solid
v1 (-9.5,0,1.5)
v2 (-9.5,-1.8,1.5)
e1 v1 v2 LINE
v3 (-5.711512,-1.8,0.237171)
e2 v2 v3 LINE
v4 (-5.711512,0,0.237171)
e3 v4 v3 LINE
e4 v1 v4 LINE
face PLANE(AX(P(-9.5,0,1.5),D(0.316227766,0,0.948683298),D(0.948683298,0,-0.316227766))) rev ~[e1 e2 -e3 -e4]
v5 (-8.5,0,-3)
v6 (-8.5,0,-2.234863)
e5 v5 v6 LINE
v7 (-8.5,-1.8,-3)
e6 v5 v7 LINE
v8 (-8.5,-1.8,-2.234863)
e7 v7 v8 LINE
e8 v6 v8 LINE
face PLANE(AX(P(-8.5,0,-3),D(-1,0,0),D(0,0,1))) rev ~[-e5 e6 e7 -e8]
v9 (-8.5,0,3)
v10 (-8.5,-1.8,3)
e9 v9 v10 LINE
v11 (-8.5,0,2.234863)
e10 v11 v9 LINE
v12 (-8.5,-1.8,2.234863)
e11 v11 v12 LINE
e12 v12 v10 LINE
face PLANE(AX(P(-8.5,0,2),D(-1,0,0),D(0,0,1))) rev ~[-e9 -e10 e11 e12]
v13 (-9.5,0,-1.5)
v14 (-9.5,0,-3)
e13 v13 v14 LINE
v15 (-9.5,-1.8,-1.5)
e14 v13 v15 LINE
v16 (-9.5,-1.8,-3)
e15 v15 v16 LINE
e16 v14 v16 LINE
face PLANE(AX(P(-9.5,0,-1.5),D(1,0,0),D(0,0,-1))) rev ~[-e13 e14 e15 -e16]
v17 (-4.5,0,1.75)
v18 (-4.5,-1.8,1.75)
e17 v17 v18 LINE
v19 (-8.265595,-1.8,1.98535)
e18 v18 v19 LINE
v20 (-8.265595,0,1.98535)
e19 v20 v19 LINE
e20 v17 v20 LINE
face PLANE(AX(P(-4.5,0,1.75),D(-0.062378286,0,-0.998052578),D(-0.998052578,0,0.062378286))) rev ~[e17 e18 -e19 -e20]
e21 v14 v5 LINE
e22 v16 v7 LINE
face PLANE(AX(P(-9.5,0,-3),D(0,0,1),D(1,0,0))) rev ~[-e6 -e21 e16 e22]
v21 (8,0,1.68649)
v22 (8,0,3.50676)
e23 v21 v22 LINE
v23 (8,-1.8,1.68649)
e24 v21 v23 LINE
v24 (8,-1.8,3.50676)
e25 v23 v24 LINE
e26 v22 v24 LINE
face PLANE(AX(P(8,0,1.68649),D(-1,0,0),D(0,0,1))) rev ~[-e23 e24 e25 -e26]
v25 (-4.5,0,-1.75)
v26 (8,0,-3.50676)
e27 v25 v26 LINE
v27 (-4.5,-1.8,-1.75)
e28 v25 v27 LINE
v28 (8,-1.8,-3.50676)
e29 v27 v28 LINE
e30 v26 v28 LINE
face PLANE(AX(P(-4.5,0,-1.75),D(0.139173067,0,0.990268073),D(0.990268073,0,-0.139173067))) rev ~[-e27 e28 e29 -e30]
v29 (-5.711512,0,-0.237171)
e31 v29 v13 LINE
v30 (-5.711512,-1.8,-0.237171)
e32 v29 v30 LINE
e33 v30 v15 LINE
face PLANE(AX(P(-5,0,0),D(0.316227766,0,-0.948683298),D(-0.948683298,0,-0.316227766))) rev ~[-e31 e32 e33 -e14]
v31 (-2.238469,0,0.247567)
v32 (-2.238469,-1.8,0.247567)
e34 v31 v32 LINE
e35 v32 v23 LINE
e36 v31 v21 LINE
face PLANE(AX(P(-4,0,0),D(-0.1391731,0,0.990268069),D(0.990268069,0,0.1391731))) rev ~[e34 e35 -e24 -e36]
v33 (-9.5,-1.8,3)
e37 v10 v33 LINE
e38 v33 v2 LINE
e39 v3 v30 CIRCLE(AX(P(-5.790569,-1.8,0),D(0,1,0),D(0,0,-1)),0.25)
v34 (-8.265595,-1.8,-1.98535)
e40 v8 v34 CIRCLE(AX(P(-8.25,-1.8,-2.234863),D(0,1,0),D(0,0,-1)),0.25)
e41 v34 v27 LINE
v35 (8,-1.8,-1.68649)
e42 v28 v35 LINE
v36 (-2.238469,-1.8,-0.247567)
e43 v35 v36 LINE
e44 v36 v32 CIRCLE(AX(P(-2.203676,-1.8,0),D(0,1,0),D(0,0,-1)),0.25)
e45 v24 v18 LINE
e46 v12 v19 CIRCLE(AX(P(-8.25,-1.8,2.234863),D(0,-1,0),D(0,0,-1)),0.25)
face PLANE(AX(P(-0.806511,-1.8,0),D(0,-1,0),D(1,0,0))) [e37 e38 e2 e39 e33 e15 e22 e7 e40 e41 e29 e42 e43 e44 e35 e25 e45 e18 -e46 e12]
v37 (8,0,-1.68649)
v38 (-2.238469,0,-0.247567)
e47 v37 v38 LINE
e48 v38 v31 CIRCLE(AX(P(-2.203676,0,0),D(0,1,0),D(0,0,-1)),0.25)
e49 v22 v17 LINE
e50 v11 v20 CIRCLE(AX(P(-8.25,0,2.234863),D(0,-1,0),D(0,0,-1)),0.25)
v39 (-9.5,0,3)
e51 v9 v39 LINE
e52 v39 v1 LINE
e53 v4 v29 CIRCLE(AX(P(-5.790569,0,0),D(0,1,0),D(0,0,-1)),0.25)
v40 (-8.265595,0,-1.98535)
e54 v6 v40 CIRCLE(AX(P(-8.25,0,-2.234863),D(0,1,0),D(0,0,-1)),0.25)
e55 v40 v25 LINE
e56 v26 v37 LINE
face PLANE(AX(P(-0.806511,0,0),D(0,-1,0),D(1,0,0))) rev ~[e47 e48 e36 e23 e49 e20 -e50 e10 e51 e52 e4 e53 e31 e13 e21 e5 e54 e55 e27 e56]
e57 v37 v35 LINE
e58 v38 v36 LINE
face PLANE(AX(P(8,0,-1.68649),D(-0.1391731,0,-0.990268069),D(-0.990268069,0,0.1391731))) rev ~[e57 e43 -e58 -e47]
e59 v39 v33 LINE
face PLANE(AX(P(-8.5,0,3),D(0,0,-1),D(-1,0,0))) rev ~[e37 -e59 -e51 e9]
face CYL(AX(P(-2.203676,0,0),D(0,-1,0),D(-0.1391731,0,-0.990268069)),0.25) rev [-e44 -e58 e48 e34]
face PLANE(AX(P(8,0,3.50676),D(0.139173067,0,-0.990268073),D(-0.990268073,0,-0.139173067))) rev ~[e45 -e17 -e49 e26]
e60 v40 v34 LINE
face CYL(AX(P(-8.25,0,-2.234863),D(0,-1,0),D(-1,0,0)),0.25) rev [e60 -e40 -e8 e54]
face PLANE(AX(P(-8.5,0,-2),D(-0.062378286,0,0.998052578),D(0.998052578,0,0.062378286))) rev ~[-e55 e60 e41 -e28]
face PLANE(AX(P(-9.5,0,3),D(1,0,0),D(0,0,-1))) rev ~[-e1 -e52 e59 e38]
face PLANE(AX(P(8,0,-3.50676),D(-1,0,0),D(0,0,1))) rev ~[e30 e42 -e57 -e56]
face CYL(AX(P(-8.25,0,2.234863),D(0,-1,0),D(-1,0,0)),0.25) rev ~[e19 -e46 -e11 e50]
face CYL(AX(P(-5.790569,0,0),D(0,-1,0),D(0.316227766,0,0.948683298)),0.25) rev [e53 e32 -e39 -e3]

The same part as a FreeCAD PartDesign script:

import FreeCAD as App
import Part
import Sketcher

V = App.Vector
Q = App.Units.Quantity


def edges_at(feature, points):
    """Names of the edges that pass closest to the given points."""
    edges = feature.Shape.Edges
    near = lambda p: min(range(len(edges)), key=lambda i: edges[i].distToShape(Part.Vertex(*p))[0])
    return sorted({f"Edge{near(p) + 1}" for p in points})


def add_polygon(sketch, points):
    """Adds a closed chain of lines whose ends are joined by coincident constraints."""
    first, n = sketch.GeometryCount, len(points)
    for a, b in zip(points, points[1:] + points[:1]):
        sketch.addGeometry(Part.LineSegment(App.Vector(*a, 0), App.Vector(*b, 0)), False)
    for i in range(n):
        sketch.addConstraint(Sketcher.Constraint("Coincident", first + i, 2, first + (i + 1) % n, 1))

doc = App.newDocument("Part")
params = doc.addObject("Spreadsheet::Sheet", "Params")
for row, (alias, value) in enumerate([
    ("sketch1_width", "1 mm"),
    ("sketch1_height", "1.5 mm"),
    ("pad1_length", "1.8 mm"),
    ("fillet_radius", "0.25 mm"),
    ("fillet2_radius", "0.25 mm"),
], start=1):
    params.set(f"A{row}", alias)
    params.set(f"B{row}", "=" + value)
    params.setAlias(f"B{row}", alias)

body = doc.addObject("PartDesign::Body", "Body")

# Sketch on XZ plane
sketch1 = body.newObject("Sketcher::SketchObject", "Sketch")
sketch1.AttachmentSupport = (doc.getObject("XZ_Plane"), [""])
sketch1.MapMode = "FlatFace"
add_polygon(sketch1, [(8, 3.50676), (-4.5, 1.75), (-8.5, 2), (-8.5, 3), (-9.5, 3), (-9.5, 1.5), (-5, 0), (-9.5, -1.5), (-9.5, -3), (-8.5, -3), (-8.5, -2), (-4.5, -1.75), (8, -3.50676), (8, -1.68649), (-4, 0), (8, 1.68649)])  # lines 0-15
sketch1.addConstraint([
    Sketcher.Constraint("Vertical", 2),
    Sketcher.Constraint("Horizontal", 3),
    Sketcher.Constraint("Vertical", 4),
    Sketcher.Constraint("Vertical", 7),
    Sketcher.Constraint("Horizontal", 8),
    Sketcher.Constraint("Vertical", 9),
    Sketcher.Constraint("Vertical", 12),
    Sketcher.Constraint("Vertical", 15),
    Sketcher.Constraint("Symmetric", 4, 2, 6, 2, -1),
    Sketcher.Constraint("Symmetric", 2, 2, 8, 2, -1),
    Sketcher.Constraint("Symmetric", 0, 2, 10, 2, -1),
    Sketcher.Constraint("Symmetric", 12, 2, 14, 2, -1),
    Sketcher.Constraint("PointOnObject", 5, 2, -1),
    Sketcher.Constraint("PointOnObject", 13, 2, -1),
    Sketcher.Constraint("Parallel", 11, 13),
    Sketcher.Constraint("Parallel", 0, 14),
    Sketcher.Constraint("Equal", 8, 2),
    Sketcher.Constraint("Equal", 2, 9),
    Sketcher.Constraint("DistanceX", 3, 2, 3, 1, 1.0),
    Sketcher.Constraint("Angle", 0, Q("-172.000002 deg")),
    Sketcher.Constraint("DistanceY", 4, 2, 4, 1, 1.5),
    Sketcher.Constraint("DistanceY", -1, 1, 1, 2, 2.0),
    Sketcher.Constraint("DistanceX", 5, 2, -1, 1, 5.0),
    Sketcher.Constraint("DistanceX", -1, 1, 11, 2, 8.0),
    Sketcher.Constraint("DistanceX", 13, 2, -1, 1, 4.0),
    Sketcher.Constraint("DistanceX", 1, 2, 0, 2, 4.0),
    Sketcher.Constraint("DistanceX", 0, 2, -1, 1, 4.5),
    Sketcher.Constraint("DistanceY", 10, 2, 0, 2, 3.5),
])
sketch1.setExpression("Constraints[34]", "Params.sketch1_width")
sketch1.setExpression("Constraints[36]", "Params.sketch1_height")
pad1 = body.newObject("PartDesign::Pad", "Pad")
pad1.Profile = sketch1
pad1.setExpression("Length", "Params.pad1_length")
doc.recompute()

fillet = body.newObject("PartDesign::Fillet", "Fillet")
fillet.Base = (pad1, edges_at(pad1, [(-4, -0.9, 0), (-5, -0.9, 0)]))
fillet.setExpression("Radius", "Params.fillet_radius")
doc.recompute()

fillet2 = body.newObject("PartDesign::Fillet", "Fillet001")
fillet2.Base = (fillet, edges_at(fillet, [(-8.5, -0.9, 2), (-8.5, -0.9, -2)]))
fillet2.setExpression("Radius", "Params.fillet2_radius")

doc.recompute()
